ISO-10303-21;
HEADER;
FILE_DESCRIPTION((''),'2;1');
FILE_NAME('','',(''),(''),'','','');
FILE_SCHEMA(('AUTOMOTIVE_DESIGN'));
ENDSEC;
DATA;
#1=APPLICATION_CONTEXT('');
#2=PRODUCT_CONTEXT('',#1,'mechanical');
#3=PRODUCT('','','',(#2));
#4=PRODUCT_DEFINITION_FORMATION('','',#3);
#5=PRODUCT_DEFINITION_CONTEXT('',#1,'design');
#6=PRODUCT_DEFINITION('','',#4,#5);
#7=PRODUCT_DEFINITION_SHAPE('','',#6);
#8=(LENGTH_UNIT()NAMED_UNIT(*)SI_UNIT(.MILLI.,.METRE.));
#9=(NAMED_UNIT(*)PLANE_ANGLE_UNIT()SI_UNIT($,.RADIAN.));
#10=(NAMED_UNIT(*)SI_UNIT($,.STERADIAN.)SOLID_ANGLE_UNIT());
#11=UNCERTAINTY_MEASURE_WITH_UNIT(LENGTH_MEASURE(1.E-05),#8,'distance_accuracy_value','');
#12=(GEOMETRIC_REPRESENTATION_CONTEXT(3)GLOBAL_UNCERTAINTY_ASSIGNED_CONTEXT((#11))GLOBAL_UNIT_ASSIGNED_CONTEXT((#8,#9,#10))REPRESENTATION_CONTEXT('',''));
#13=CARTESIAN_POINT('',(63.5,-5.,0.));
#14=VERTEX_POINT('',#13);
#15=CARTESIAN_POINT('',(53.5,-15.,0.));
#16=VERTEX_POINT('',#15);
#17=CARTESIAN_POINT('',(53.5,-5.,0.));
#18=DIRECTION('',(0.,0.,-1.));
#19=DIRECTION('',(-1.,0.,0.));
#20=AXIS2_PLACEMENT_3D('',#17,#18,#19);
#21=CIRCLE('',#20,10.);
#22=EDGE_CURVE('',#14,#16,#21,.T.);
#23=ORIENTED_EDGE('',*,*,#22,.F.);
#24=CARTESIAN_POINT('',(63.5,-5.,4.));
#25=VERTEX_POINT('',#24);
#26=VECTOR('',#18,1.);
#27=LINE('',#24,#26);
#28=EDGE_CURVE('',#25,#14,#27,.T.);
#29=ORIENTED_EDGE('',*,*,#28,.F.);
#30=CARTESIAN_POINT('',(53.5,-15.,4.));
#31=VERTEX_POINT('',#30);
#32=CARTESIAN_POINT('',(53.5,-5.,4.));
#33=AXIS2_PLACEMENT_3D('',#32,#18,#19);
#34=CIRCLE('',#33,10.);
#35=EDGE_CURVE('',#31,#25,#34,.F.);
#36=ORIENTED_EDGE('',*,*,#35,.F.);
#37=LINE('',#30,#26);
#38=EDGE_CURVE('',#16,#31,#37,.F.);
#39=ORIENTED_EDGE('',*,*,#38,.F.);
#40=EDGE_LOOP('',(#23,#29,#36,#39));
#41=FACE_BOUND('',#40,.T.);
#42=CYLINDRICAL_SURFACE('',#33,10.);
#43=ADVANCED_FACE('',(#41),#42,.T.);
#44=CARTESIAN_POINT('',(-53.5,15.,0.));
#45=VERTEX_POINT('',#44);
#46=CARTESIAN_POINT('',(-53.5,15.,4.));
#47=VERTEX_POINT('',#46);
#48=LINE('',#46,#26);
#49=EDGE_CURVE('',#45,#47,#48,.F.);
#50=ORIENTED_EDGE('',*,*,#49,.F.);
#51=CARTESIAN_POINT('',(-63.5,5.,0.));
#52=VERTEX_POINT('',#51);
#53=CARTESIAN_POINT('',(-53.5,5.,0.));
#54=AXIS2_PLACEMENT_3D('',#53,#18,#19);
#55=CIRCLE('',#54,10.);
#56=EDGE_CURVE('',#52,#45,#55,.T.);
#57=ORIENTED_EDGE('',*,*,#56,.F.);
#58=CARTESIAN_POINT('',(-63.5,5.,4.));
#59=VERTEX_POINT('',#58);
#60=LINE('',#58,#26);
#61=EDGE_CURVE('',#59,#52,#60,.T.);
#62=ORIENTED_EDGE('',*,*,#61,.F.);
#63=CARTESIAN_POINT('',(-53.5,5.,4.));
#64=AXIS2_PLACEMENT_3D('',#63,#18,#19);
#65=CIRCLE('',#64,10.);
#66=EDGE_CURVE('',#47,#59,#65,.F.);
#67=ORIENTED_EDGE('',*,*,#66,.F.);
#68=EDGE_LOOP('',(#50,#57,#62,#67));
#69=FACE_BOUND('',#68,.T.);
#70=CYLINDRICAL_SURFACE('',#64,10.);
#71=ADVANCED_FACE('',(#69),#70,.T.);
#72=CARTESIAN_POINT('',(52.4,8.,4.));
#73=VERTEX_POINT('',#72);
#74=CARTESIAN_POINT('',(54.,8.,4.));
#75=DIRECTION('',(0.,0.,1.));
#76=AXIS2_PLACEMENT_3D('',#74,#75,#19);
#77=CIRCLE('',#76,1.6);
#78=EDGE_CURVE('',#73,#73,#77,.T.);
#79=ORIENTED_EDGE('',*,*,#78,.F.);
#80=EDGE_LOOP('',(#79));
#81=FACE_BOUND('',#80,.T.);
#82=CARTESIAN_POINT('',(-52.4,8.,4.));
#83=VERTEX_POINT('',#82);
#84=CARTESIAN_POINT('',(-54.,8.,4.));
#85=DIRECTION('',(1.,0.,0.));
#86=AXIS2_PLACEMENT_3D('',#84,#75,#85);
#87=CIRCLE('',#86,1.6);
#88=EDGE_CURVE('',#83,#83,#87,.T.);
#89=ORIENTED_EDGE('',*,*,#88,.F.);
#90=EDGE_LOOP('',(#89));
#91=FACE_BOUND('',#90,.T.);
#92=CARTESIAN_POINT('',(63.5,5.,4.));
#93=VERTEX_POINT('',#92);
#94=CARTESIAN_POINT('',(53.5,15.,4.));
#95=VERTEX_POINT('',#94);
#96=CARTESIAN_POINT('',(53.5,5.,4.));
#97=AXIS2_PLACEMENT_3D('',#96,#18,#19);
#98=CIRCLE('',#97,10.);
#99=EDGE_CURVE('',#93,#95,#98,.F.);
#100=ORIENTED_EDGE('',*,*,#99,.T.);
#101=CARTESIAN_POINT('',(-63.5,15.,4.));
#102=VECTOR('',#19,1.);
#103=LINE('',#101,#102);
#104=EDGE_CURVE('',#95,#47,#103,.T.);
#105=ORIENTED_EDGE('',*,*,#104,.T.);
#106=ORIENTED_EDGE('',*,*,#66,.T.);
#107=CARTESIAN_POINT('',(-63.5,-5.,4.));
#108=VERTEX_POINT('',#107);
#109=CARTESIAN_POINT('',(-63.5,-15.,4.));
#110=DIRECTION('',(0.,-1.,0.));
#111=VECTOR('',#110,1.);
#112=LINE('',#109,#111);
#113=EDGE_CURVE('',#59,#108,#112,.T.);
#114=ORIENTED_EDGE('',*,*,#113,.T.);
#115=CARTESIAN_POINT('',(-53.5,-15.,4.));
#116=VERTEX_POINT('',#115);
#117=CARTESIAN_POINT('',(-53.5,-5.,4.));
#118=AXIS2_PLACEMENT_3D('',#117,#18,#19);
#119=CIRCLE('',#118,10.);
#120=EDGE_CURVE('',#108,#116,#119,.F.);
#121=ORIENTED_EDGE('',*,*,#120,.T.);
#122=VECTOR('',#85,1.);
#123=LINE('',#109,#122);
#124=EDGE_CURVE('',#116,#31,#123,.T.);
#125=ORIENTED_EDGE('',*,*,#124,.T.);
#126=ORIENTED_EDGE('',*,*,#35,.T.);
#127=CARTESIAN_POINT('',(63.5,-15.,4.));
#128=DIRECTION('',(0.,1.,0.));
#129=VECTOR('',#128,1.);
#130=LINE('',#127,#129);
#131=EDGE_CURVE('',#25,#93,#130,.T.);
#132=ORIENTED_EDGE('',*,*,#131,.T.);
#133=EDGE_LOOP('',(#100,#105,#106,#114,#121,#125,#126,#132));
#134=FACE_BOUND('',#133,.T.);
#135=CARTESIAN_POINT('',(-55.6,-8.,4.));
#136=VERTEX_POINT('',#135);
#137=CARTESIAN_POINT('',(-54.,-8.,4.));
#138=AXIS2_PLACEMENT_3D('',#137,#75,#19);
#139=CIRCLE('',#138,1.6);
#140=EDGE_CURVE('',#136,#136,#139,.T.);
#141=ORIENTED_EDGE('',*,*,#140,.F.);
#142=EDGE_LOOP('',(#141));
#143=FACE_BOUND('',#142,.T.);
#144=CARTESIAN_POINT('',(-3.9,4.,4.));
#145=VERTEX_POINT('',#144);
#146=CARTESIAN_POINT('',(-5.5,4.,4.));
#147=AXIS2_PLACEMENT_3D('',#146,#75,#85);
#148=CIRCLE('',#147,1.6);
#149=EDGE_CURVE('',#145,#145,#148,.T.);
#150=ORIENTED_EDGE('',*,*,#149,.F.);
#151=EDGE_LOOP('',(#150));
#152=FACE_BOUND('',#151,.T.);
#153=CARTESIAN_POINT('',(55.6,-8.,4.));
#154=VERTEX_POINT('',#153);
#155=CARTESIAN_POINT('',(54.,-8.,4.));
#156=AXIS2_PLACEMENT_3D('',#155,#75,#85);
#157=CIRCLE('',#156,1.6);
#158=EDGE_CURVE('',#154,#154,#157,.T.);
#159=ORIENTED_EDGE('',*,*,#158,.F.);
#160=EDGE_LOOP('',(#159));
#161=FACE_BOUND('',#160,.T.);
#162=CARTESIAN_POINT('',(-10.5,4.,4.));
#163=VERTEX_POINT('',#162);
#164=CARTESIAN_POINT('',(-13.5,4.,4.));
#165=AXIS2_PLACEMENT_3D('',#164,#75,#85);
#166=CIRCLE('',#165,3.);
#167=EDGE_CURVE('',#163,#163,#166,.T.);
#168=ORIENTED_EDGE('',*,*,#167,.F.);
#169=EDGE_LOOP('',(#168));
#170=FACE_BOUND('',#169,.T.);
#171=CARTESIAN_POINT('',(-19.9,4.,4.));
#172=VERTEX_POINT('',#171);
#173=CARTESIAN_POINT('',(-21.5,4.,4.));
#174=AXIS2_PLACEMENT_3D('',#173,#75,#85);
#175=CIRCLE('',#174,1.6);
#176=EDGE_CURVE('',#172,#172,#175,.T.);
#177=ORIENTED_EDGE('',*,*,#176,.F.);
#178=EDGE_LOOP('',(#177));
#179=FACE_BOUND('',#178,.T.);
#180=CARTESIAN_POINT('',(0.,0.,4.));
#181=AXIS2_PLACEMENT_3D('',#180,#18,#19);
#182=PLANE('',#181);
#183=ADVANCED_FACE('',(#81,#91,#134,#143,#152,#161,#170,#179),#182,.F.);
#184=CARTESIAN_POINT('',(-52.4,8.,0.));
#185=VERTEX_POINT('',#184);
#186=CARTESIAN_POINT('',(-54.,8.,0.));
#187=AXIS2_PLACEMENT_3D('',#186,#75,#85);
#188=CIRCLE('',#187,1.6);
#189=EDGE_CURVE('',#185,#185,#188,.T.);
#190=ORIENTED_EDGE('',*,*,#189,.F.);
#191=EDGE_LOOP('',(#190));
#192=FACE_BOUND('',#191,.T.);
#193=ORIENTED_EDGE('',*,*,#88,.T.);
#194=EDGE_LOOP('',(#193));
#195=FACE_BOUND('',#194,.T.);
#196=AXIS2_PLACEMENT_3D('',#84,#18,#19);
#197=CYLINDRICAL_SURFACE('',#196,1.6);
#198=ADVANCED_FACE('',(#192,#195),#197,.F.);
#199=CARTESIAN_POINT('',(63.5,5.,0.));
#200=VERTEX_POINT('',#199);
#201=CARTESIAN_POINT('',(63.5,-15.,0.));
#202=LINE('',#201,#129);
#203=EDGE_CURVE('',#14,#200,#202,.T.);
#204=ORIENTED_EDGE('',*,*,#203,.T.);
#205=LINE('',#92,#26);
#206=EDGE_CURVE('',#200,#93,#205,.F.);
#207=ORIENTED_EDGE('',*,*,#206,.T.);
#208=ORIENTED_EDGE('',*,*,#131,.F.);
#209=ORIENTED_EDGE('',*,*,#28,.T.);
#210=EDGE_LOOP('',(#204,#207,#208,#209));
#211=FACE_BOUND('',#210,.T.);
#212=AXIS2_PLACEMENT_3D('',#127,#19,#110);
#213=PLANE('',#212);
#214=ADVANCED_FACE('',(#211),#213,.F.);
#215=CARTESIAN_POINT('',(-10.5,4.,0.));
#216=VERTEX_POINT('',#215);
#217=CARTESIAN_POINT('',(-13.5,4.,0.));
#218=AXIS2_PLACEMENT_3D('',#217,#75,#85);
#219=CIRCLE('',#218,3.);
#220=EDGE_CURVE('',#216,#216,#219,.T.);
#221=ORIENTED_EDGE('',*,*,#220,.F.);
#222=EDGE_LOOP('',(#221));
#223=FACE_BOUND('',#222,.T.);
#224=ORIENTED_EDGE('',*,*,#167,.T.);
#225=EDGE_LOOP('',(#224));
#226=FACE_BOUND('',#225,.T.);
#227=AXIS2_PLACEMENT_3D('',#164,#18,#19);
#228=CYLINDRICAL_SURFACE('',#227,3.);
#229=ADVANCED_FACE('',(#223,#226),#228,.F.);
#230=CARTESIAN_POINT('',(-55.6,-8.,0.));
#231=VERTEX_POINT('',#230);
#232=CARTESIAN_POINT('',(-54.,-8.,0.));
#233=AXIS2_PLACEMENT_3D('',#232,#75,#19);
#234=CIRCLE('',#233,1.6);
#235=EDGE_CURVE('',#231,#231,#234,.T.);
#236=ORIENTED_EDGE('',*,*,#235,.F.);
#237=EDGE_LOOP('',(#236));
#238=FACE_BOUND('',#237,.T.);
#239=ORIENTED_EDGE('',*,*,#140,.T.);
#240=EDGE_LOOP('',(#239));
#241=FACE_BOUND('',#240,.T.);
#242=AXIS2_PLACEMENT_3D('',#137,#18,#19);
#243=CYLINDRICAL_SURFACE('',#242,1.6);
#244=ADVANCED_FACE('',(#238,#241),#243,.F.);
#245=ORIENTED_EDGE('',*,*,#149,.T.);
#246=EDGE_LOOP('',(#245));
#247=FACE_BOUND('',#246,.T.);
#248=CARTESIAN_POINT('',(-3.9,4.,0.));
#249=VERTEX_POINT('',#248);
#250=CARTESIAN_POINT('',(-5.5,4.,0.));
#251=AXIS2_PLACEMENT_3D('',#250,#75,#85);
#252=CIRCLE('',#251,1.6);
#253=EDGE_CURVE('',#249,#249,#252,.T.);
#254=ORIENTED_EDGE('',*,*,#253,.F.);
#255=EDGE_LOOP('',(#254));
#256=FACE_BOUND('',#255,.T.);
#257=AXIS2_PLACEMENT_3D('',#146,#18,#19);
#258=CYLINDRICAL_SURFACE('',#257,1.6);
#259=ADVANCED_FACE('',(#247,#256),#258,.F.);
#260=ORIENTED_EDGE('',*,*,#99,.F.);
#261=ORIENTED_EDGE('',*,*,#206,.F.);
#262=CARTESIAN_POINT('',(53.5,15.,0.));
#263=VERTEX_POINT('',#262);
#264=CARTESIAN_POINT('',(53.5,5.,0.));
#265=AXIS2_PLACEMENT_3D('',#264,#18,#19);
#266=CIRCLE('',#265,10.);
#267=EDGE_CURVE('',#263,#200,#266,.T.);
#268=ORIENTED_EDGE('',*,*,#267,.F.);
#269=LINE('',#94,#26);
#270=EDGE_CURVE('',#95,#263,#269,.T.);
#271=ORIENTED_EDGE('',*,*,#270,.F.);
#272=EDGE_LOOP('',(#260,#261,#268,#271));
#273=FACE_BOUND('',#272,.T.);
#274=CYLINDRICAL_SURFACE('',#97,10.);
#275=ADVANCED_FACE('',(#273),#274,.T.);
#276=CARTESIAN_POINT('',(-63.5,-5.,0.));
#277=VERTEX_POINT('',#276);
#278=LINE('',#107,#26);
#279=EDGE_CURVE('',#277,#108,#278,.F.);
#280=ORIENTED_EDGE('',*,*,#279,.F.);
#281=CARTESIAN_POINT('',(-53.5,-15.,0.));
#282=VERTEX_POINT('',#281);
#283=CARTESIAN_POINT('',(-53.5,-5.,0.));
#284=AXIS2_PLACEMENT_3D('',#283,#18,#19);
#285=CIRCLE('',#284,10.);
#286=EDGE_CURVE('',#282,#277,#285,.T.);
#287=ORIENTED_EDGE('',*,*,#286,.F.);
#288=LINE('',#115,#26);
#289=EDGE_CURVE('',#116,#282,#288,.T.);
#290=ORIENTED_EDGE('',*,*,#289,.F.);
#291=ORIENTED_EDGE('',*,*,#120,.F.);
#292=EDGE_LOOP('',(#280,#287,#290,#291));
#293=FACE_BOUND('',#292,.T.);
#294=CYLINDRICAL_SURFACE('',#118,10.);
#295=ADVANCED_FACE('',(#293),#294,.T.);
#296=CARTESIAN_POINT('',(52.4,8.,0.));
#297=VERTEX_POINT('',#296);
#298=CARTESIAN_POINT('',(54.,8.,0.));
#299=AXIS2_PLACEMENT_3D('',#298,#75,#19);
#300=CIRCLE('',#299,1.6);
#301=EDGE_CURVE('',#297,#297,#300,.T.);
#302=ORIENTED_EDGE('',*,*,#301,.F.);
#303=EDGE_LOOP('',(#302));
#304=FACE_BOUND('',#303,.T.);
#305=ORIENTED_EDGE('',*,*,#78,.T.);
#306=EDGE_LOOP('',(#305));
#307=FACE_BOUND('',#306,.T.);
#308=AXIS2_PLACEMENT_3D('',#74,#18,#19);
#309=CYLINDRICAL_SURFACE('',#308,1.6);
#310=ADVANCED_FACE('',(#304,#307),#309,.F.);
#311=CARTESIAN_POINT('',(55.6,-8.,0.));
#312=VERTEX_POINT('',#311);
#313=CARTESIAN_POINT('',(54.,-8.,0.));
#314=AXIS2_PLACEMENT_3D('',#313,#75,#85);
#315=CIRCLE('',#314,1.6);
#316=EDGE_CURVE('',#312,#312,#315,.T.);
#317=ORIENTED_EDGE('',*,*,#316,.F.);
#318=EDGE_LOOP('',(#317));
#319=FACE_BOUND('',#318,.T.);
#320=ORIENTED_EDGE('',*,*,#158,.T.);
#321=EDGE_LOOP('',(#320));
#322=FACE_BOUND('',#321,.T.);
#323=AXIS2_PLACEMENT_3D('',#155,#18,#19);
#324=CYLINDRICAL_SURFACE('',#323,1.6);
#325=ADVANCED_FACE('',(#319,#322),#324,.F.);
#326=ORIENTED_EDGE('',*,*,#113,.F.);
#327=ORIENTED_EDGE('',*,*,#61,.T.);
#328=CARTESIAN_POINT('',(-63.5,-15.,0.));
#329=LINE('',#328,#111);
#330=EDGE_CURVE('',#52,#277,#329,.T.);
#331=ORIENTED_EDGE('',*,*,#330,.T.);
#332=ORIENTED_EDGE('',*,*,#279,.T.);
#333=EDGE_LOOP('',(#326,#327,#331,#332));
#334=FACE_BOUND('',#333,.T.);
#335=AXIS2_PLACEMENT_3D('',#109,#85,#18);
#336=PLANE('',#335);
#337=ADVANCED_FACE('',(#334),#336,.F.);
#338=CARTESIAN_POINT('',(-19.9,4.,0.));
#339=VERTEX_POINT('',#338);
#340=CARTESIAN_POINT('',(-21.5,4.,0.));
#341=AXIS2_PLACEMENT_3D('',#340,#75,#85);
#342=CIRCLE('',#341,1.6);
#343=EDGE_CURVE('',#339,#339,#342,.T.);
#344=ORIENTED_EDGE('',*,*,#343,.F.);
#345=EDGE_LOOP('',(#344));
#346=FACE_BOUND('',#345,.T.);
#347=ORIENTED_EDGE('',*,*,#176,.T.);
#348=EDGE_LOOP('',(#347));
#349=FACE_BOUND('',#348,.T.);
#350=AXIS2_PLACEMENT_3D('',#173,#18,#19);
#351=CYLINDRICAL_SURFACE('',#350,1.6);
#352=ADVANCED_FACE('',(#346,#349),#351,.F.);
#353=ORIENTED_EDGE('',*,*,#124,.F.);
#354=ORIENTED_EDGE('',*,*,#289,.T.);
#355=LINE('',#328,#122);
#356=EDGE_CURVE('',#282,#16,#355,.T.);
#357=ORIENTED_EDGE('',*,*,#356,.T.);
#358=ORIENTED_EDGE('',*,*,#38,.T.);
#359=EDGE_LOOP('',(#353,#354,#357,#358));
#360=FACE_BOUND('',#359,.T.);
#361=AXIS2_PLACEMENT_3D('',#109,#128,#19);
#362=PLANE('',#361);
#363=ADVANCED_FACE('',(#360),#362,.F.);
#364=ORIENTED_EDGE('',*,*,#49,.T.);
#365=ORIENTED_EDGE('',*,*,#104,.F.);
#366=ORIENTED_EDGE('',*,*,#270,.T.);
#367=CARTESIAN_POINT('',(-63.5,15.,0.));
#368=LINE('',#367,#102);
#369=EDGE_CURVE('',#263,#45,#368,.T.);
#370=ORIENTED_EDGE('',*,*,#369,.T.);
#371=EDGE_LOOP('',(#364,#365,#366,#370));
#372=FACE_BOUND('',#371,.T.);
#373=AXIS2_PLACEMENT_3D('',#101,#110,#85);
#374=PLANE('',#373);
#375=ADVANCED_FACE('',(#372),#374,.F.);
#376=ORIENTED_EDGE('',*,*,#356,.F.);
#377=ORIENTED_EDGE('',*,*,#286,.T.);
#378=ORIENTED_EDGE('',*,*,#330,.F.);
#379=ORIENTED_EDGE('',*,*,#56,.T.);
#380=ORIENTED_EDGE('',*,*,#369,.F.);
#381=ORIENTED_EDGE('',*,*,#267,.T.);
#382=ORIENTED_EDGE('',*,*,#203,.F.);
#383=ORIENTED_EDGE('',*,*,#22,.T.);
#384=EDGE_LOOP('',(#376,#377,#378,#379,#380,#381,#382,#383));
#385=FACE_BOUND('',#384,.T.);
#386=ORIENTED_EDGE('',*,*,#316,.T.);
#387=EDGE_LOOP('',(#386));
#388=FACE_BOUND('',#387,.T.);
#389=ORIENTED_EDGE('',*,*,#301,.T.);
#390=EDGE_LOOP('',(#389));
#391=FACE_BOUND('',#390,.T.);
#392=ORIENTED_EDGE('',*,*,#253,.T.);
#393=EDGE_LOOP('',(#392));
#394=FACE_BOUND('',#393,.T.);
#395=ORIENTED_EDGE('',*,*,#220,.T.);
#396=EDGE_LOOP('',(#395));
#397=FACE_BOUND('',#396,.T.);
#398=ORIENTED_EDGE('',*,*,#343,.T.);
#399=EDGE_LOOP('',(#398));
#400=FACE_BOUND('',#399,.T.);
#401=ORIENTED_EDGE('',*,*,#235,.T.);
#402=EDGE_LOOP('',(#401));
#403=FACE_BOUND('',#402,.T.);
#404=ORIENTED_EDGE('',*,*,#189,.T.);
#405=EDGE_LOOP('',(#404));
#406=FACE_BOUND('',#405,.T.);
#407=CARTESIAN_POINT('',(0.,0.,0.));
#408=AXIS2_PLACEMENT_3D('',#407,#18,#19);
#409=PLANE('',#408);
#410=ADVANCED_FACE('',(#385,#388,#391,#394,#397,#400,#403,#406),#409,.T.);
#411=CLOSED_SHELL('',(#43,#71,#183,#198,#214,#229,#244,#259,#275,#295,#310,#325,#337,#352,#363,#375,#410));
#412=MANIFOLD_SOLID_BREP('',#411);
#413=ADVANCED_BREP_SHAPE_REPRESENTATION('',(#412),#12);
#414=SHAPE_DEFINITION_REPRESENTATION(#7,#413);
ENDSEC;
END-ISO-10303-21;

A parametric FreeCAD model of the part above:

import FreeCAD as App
import Part
import Sketcher
Q = App.Units.Quantity


def edges_at(feature, points):
    """Names of the edges that pass closest to the given points."""
    edges = feature.Shape.Edges
    near = lambda p: min(range(len(edges)), key=lambda i: edges[i].distToShape(Part.Vertex(*p))[0])
    return sorted({f"Edge{near(p) + 1}" for p in points})


def add_polygon(sketch, points):
    """Adds a closed chain of lines whose ends are joined by coincident constraints."""
    first, n = sketch.GeometryCount, len(points)
    for a, b in zip(points, points[1:] + points[:1]):
        sketch.addGeometry(Part.LineSegment(App.Vector(*a, 0), App.Vector(*b, 0)), False)
    for i in range(n):
        sketch.addConstraint(Sketcher.Constraint("Coincident", first + i, 2, first + (i + 1) % n, 1))

doc = App.newDocument("Part")
body = doc.addObject("PartDesign::Body", "Body")

sketch1 = body.newObject("Sketcher::SketchObject", "Sketch")
sketch1.AttachmentSupport = (doc.getObject("XY_Plane"), [""])
sketch1.MapMode = "FlatFace"
add_polygon(sketch1, [(-63.5, 15), (-63.5, -15), (63.5, -15), (63.5, 15)])
sketch1.addGeometry(Part.Circle(App.Vector(-54, -8, 0), App.Vector(0, 0, 1), 1.6), False)
sketch1.addGeometry(Part.Circle(App.Vector(54, -8, 0), App.Vector(0, 0, 1), 1.6), False)
sketch1.addGeometry(Part.Circle(App.Vector(-21.5, 4, 0), App.Vector(0, 0, 1), 1.6), False)
sketch1.addGeometry(Part.Circle(App.Vector(-13.5, 4, 0), App.Vector(0, 0, 1), 3), False)
sketch1.addGeometry(Part.Circle(App.Vector(-5.5, 4, 0), App.Vector(0, 0, 1), 1.6), False)
sketch1.addGeometry(Part.Circle(App.Vector(-54, 8, 0), App.Vector(0, 0, 1), 1.6), False)
sketch1.addGeometry(Part.Circle(App.Vector(54, 8, 0), App.Vector(0, 0, 1), 1.6), False)
sketch1.addConstraint(Sketcher.Constraint("Vertical", 0))
sketch1.addConstraint(Sketcher.Constraint("Horizontal", 1))
sketch1.addConstraint(Sketcher.Constraint("Vertical", 2))
sketch1.addConstraint(Sketcher.Constraint("Horizontal", 3))
sketch1.addConstraint(Sketcher.Constraint("Equal", 4, 5))
sketch1.addConstraint(Sketcher.Constraint("Equal", 5, 6))
sketch1.addConstraint(Sketcher.Constraint("Equal", 6, 8))
sketch1.addConstraint(Sketcher.Constraint("Equal", 8, 9))
sketch1.addConstraint(Sketcher.Constraint("Equal", 9, 10))
sketch1.addConstraint(Sketcher.Constraint("Symmetric", 5, 3, 9, 3, -1, 1))
sketch1.addConstraint(Sketcher.Constraint("Symmetric", 4, 3, 10, 3, -1, 1))
sketch1.addConstraint(Sketcher.Constraint("Symmetric", 0, 2, 2, 2, -1, 1))
sketch1.addConstraint(Sketcher.Constraint("Symmetric", 4, 3, 5, 3, -2))
sketch1.addConstraint(Sketcher.Constraint("Horizontal", 6, 3, 7, 3))
sketch1.addConstraint(Sketcher.Constraint("Horizontal", 7, 3, 8, 3))
sketch1.addConstraint(Sketcher.Constraint("Diameter", 7, Q("6 mm")))
sketch1.addConstraint(Sketcher.Constraint("Diameter", 4, Q("3.2 mm")))
sketch1.addConstraint(Sketcher.Constraint("DistanceX", 1, 1, 1, 2, Q("127 mm")))
sketch1.addConstraint(Sketcher.Constraint("DistanceY", 0, 2, 0, 1, Q("30 mm")))
sketch1.addConstraint(Sketcher.Constraint("DistanceX", 4, 3, -1, 1, Q("54 mm")))
sketch1.addConstraint(Sketcher.Constraint("DistanceY", 4, 3, -1, 1, Q("8 mm")))
sketch1.addConstraint(Sketcher.Constraint("DistanceY", -1, 1, 6, 3, Q("4 mm")))
sketch1.addConstraint(Sketcher.Constraint("DistanceX", 6, 3, 7, 3, Q("8 mm")))
sketch1.addConstraint(Sketcher.Constraint("DistanceX", 7, 3, 8, 3, Q("8 mm")))
sketch1.addConstraint(Sketcher.Constraint("DistanceX", 0, 2, 6, 3, Q("42 mm")))
pad1 = body.newObject("PartDesign::Pad", "Pad")
pad1.Profile = sketch1
pad1.Length = 4
doc.recompute()

fillet = body.newObject("PartDesign::Fillet", "Fillet")
fillet.Base = (pad1, edges_at(pad1, [
    (63.5, -15, 2),
    (-63.5, -15, 2),
    (-63.5, 15, 2),
    (63.5, 15, 2),
]))
fillet.Radius = 10

doc.recompute()
